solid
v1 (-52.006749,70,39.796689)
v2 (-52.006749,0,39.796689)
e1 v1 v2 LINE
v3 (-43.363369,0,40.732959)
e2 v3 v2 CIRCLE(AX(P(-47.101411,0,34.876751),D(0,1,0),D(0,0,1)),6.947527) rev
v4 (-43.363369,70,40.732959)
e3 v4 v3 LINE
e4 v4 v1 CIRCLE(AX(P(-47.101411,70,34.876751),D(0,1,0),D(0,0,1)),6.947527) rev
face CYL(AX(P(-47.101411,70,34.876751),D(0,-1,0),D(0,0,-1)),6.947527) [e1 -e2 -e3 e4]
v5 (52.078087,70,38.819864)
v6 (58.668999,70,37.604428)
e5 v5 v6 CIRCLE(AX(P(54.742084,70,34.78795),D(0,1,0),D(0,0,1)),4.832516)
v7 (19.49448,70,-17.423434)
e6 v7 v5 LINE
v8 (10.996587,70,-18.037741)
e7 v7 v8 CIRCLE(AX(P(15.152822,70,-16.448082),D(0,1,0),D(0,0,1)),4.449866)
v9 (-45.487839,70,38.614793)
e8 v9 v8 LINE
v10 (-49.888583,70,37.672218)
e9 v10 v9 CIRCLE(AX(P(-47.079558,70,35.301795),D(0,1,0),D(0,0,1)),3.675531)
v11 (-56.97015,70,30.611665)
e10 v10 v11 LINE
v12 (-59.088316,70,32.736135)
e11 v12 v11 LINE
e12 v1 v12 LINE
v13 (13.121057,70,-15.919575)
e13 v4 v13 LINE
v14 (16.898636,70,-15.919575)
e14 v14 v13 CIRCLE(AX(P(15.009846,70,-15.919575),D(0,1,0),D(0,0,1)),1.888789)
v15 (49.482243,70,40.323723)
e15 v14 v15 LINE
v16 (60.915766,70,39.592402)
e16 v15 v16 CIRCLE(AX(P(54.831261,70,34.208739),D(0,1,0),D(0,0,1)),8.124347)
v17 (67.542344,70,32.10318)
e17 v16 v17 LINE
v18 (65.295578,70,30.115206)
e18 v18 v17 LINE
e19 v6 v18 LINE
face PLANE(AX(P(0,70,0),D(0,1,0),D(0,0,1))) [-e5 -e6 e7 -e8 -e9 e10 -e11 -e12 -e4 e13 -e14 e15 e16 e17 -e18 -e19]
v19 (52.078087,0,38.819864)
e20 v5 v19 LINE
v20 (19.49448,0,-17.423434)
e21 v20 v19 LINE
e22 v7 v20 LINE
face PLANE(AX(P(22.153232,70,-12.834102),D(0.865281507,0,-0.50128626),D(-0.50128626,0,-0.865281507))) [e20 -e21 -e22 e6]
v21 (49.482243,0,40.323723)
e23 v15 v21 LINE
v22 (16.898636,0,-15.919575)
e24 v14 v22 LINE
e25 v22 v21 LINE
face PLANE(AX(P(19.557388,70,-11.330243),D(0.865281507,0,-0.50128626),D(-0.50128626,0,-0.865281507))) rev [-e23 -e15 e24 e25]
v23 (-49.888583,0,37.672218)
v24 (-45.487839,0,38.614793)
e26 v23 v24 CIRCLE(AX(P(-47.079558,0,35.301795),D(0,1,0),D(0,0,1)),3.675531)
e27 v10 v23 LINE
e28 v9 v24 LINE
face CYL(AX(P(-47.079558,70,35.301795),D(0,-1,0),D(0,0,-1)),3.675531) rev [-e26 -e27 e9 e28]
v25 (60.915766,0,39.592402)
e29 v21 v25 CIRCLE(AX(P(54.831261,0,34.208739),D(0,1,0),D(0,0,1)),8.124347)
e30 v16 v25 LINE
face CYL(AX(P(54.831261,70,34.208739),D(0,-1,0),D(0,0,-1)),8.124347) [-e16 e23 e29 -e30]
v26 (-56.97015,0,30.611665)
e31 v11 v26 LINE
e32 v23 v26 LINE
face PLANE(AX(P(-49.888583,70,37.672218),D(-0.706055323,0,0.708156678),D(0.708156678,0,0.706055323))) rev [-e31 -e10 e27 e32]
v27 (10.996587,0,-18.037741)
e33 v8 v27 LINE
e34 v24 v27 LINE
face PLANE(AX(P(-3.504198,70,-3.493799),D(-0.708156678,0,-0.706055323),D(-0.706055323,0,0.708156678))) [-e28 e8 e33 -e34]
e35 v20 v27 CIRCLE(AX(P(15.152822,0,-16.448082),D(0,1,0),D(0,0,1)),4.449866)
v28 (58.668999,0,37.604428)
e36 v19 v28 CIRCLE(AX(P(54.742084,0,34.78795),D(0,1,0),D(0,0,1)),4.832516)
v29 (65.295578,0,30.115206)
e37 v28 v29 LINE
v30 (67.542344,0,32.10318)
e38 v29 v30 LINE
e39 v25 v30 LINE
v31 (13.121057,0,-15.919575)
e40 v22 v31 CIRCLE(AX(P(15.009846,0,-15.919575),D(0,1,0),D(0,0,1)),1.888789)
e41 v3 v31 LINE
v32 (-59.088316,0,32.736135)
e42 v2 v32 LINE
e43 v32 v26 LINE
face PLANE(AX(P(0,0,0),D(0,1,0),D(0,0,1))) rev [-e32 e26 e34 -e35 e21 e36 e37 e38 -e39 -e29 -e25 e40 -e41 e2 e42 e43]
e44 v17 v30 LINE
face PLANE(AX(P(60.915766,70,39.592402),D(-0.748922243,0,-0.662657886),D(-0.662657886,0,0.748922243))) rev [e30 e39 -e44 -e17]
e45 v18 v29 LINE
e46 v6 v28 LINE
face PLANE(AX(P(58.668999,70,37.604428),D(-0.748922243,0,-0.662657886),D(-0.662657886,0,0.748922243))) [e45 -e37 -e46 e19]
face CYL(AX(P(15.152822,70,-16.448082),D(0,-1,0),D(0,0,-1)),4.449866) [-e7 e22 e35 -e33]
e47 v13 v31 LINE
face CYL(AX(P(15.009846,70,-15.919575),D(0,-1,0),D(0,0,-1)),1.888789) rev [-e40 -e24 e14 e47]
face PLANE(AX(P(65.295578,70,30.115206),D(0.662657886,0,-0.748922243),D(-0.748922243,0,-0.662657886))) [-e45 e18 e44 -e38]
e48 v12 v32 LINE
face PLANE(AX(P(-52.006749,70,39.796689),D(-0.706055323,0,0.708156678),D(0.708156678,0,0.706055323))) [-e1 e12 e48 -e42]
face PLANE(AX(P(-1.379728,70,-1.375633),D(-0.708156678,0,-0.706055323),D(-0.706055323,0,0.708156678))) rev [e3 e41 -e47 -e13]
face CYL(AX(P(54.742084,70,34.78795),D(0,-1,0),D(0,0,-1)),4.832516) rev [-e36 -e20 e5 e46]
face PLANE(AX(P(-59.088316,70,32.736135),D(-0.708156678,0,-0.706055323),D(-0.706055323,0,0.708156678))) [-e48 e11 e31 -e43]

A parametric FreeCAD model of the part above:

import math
import FreeCAD as App
import Part
import Sketcher

doc = App.newDocument("Part")
body = doc.addObject("PartDesign::Body", "Body")

sketch1 = doc.addObject("Sketcher::SketchObject", "Sketch")
body.addObject(sketch1)
sketch1.AttachmentSupport = (doc.XZ_Plane, [""])
sketch1.MapMode = "FlatFace"
sketch1.addGeometry([
    Part.LineSegment(App.Vector(10.996587, -18.037741, 0), App.Vector(-45.487839, 38.614793, 0)),
    Part.ArcOfCircle(Part.Circle(App.Vector(-47.079558, 35.301795, 0), App.Vector(0, 0, 1), 3.675531), math.radians(64.338191), math.radians(139.840315)),
    Part.LineSegment(App.Vector(-49.888583, 37.672218, 0), App.Vector(-56.97015, 30.611665, 0)),
    Part.LineSegment(App.Vector(-56.97015, 30.611665, 0), App.Vector(-59.088316, 32.736135, 0)),
    Part.LineSegment(App.Vector(-59.088316, 32.736135, 0), App.Vector(-52.006749, 39.796689, 0)),
    Part.ArcOfCircle(Part.Circle(App.Vector(-47.101411, 34.876751, 0), App.Vector(0, 0, 1), 6.947527), math.radians(57.44974), math.radians(134.914865)),
    Part.LineSegment(App.Vector(-43.363369, 40.732959, 0), App.Vector(13.121057, -15.919575, 0)),
    Part.ArcOfCircle(Part.Circle(App.Vector(15.009846, -15.919575, 0), App.Vector(0, 0, 1), 1.888789), math.radians(180), math.radians(360)),
    Part.LineSegment(App.Vector(16.898636, -15.919575, 0), App.Vector(49.482243, 40.323723, 0)),
    Part.ArcOfCircle(Part.Circle(App.Vector(54.831261, 34.208739, 0), App.Vector(0, 0, 1), 8.124347), math.radians(41.502895), math.radians(131.177476)),
    Part.LineSegment(App.Vector(60.915766, 39.592402, 0), App.Vector(67.542344, 32.10318, 0)),
    Part.LineSegment(App.Vector(67.542344, 32.10318, 0), App.Vector(65.295578, 30.115206, 0)),
    Part.LineSegment(App.Vector(65.295578, 30.115206, 0), App.Vector(58.668999, 37.604428, 0)),
    Part.ArcOfCircle(Part.Circle(App.Vector(54.742084, 34.78795, 0), App.Vector(0, 0, 1), 4.832516), math.radians(35.649005), math.radians(123.453846)),
    Part.LineSegment(App.Vector(52.078087, 38.819864, 0), App.Vector(19.49448, -17.423434, 0)),
    Part.ArcOfCircle(Part.Circle(App.Vector(15.152822, -16.448082, 0), App.Vector(0, 0, 1), 4.449866), math.radians(-159.069354), math.radians(-12.66128)),
], False)
sketch1.addConstraint([
    Sketcher.Constraint("Coincident", 0, 2, 1, 1),
    Sketcher.Constraint("Coincident", 1, 2, 2, 1),
    Sketcher.Constraint("Coincident", 2, 2, 3, 1),
    Sketcher.Constraint("Coincident", 3, 2, 4, 1),
    Sketcher.Constraint("Tangent", 4, 2, 5, 2),
    Sketcher.Constraint("Coincident", 5, 1, 6, 1),
    Sketcher.Constraint("Coincident", 6, 2, 7, 1),
    Sketcher.Constraint("Coincident", 7, 2, 8, 1),
    Sketcher.Constraint("Coincident", 8, 2, 9, 2),
    Sketcher.Constraint("Tangent", 9, 1, 10, 1),
    Sketcher.Constraint("Coincident", 10, 2, 11, 1),
    Sketcher.Constraint("Coincident", 11, 2, 12, 1),
    Sketcher.Constraint("Coincident", 12, 2, 13, 1),
    Sketcher.Constraint("Coincident", 13, 2, 14, 1),
    Sketcher.Constraint("Coincident", 14, 2, 15, 2),
    Sketcher.Constraint("Coincident", 15, 1, 0, 1),
    Sketcher.Constraint("Perpendicular", 0, 2),
    Sketcher.Constraint("Perpendicular", 2, 3),
    Sketcher.Constraint("Perpendicular", 3, 4),
    Sketcher.Constraint("Perpendicular", 4, 6),
    Sketcher.Constraint("Perpendicular", 10, 11),
    Sketcher.Constraint("Perpendicular", 11, 12),
    Sketcher.Constraint("Parallel", 8, 14),
    Sketcher.Constraint("Horizontal", 7, 3, 6, 2),
    Sketcher.Constraint("Horizontal", 6, 2, 7, 2),
    Sketcher.Constraint("Equal", 2, 4),
    Sketcher.Constraint("Equal", 0, 6),
    Sketcher.Constraint("Equal", 4, 10),
    Sketcher.Constraint("Equal", 3, 11),
    Sketcher.Constraint("Equal", 10, 12),
    Sketcher.Constraint("Equal", 8, 14),
    Sketcher.Constraint("Distance", 0, 80.0),
    Sketcher.Constraint("Distance", 2, 10.0),
    Sketcher.Constraint("Distance", 3, 3.0),
    Sketcher.Constraint("Distance", 8, 65.0),
    Sketcher.Constraint("Radius", 1, 3.675531),
    Sketcher.Constraint("Radius", 7, 1.888789),
    Sketcher.Constraint("DistanceX", -1, 1, 12, 2, 58.668999),
    Sketcher.Constraint("Radius", 5, 6.947527),
    Sketcher.Constraint("Radius", 9, 8.124347),
    Sketcher.Constraint("Radius", 13, 4.832516),
    Sketcher.Constraint("Radius", 15, 4.449866),
    Sketcher.Constraint("DistanceY", 1, 3, 0, 2, 3.312998),
    Sketcher.Constraint("DistanceY", 13, 3, 5, 3, 0.088801),
    Sketcher.Constraint("DistanceY", 15, 3, 1, 2, 54.1203),
    Sketcher.Constraint("DistanceX", 8, 2, 10, 2, 18.060102),
    Sketcher.Constraint("DistanceX", 1, 3, -1, 1, 47.079558),
    Sketcher.Constraint("DistanceX", 5, 3, -1, 1, 47.101411),
    Sketcher.Constraint("DistanceY", -1, 1, 5, 3, 34.876751),
    Sketcher.Constraint("DistanceX", -1, 1, 9, 3, 54.831261),
    Sketcher.Constraint("DistanceY", -1, 1, 9, 3, 34.208739),
    Sketcher.Constraint("DistanceX", 5, 1, -1, 1, 43.363369),
])
pad1 = doc.addObject("PartDesign::Pad", "Pad")
body.addObject(pad1)
pad1.Profile = sketch1
pad1.Length = 70
pad1.Reversed = True

doc.recompute()
